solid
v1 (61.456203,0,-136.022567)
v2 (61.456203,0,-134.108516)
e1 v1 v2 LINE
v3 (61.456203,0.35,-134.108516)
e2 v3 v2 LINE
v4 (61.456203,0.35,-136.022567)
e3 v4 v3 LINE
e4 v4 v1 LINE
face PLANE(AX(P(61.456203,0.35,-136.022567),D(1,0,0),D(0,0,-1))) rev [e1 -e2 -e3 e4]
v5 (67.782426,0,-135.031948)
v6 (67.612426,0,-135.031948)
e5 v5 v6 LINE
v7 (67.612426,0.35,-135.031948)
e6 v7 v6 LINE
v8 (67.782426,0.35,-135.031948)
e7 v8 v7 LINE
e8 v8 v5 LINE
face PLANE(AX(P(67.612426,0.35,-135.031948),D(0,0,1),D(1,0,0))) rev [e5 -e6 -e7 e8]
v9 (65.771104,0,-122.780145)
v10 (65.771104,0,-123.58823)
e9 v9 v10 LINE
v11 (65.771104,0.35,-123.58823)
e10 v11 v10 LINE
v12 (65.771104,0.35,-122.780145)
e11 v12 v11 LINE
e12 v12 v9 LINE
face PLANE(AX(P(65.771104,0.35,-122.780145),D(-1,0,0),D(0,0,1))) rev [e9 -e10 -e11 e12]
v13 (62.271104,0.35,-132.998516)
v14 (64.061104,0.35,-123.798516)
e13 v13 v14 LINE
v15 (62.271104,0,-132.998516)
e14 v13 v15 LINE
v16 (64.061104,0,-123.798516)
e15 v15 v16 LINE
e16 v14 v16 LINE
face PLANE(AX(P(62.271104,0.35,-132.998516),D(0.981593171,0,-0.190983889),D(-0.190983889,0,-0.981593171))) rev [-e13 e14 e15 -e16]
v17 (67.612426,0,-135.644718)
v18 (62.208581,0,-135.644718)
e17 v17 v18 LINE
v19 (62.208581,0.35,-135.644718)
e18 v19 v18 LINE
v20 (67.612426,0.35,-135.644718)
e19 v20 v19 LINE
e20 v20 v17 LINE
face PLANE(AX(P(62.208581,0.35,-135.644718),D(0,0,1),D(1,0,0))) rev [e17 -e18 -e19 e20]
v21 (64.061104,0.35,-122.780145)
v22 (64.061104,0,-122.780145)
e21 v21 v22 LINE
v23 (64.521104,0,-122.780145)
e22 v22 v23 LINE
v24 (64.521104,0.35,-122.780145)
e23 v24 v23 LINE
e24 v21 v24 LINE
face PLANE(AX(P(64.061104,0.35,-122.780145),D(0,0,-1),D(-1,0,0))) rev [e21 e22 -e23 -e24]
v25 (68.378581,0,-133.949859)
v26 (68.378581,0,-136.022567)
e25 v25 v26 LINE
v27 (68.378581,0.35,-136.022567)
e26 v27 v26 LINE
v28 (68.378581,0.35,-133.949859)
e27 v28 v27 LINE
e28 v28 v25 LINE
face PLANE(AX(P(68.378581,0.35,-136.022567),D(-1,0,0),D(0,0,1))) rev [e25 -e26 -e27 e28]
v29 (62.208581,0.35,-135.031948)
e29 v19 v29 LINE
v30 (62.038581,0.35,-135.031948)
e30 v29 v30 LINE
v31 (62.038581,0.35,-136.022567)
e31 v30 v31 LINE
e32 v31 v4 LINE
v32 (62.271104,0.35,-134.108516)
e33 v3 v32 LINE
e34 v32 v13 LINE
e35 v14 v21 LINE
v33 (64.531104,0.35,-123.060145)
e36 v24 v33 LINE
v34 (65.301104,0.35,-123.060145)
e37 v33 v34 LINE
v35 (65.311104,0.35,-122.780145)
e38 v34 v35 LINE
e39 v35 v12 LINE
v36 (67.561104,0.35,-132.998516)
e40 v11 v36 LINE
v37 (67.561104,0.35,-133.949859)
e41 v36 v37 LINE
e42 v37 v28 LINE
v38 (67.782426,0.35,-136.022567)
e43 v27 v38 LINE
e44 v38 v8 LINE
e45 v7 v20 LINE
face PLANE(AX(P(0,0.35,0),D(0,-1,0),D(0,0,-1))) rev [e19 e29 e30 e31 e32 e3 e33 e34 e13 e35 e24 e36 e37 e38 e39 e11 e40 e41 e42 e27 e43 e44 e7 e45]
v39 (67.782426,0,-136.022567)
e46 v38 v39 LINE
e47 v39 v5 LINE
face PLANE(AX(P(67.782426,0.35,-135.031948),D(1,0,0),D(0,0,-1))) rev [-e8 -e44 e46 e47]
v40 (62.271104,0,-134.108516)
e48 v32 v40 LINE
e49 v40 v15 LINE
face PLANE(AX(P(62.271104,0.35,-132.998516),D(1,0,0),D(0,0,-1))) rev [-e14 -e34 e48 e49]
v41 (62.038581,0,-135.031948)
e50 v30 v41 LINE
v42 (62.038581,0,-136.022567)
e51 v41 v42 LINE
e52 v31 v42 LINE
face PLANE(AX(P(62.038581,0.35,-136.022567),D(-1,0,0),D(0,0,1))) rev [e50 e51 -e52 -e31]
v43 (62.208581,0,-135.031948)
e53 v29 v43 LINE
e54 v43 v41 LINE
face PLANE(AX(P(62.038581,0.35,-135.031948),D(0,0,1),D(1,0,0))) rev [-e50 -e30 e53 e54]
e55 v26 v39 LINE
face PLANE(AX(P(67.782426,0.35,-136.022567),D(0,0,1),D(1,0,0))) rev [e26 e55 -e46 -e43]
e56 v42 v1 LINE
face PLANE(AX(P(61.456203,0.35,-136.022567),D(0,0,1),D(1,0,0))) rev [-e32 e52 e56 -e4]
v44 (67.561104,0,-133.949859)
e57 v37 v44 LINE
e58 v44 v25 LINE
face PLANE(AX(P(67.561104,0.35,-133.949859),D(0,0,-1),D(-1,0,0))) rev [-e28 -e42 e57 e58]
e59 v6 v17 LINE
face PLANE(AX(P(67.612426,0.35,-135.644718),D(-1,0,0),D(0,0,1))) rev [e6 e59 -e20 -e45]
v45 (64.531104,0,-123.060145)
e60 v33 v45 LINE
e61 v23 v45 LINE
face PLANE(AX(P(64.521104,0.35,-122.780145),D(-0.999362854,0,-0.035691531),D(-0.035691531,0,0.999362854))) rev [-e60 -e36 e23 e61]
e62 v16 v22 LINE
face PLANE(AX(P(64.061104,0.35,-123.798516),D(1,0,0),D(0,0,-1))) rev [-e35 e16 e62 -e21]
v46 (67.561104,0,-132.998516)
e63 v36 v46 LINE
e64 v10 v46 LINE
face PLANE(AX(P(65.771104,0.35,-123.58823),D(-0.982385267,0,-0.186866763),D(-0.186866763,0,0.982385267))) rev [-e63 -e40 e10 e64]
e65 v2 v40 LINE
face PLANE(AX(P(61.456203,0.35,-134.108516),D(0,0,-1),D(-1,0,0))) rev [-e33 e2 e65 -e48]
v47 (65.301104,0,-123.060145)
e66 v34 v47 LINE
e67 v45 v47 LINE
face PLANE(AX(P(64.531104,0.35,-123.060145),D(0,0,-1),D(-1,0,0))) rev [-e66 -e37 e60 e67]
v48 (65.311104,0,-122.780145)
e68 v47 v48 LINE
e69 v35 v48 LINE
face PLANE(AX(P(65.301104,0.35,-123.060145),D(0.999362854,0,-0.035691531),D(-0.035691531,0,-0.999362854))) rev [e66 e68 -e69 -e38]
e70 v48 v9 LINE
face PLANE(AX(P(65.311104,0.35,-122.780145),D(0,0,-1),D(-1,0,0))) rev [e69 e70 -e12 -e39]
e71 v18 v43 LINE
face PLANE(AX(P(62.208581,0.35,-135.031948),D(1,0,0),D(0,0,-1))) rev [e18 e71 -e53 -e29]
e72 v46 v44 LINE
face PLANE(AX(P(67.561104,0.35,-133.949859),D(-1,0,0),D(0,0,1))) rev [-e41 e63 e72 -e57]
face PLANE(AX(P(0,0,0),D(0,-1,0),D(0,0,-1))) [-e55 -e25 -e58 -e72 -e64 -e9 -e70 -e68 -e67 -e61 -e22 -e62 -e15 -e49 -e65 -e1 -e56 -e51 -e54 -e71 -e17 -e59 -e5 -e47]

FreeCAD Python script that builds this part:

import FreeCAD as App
import Part
import Sketcher
Q = App.Units.Quantity

doc = App.newDocument("Part")
body = doc.addObject("PartDesign::Body", "Body")

sketch1 = body.newObject("Sketcher::SketchObject", "Sketch")
sketch1.AttachmentSupport = (doc.getObject("XZ_Plane"), [""])
sketch1.MapMode = "FlatFace"
sketch1.addGeometry([
    Part.LineSegment(App.Vector(65.77, -123.59, 0), App.Vector(67.56, -133, 0)),
    Part.LineSegment(App.Vector(67.56, -133, 0), App.Vector(67.56, -133.95, 0)),
    Part.LineSegment(App.Vector(67.56, -133.95, 0), App.Vector(68.38, -133.95, 0)),
    Part.LineSegment(App.Vector(68.38, -133.95, 0), App.Vector(68.38, -136.02, 0)),
    Part.LineSegment(App.Vector(68.38, -136.02, 0), App.Vector(67.78, -136.02, 0)),
    Part.LineSegment(App.Vector(67.78, -136.02, 0), App.Vector(67.78, -135.03, 0)),
    Part.LineSegment(App.Vector(67.78, -135.03, 0), App.Vector(67.61, -135.03, 0)),
    Part.LineSegment(App.Vector(67.61, -135.03, 0), App.Vector(67.61, -135.64, 0)),
    Part.LineSegment(App.Vector(67.61, -135.64, 0), App.Vector(62.21, -135.64, 0)),
    Part.LineSegment(App.Vector(62.21, -135.64, 0), App.Vector(62.21, -135.03, 0)),
    Part.LineSegment(App.Vector(62.21, -135.03, 0), App.Vector(62.04, -135.03, 0)),
    Part.LineSegment(App.Vector(62.04, -135.03, 0), App.Vector(62.04, -136.02, 0)),
    Part.LineSegment(App.Vector(62.04, -136.02, 0), App.Vector(61.46, -136.02, 0)),
    Part.LineSegment(App.Vector(61.46, -136.02, 0), App.Vector(61.46, -134.11, 0)),
    Part.LineSegment(App.Vector(61.46, -134.11, 0), App.Vector(62.27, -134.11, 0)),
    Part.LineSegment(App.Vector(62.27, -134.11, 0), App.Vector(62.27, -133, 0)),
    Part.LineSegment(App.Vector(62.27, -133, 0), App.Vector(64.06, -123.8, 0)),
    Part.LineSegment(App.Vector(64.06, -123.8, 0), App.Vector(64.06, -122.78, 0)),
    Part.LineSegment(App.Vector(64.06, -122.78, 0), App.Vector(64.52, -122.78, 0)),
    Part.LineSegment(App.Vector(64.52, -122.78, 0), App.Vector(64.53, -123.06, 0)),
    Part.LineSegment(App.Vector(64.53, -123.06, 0), App.Vector(65.3, -123.06, 0)),
    Part.LineSegment(App.Vector(65.3, -123.06, 0), App.Vector(65.31, -122.78, 0)),
    Part.LineSegment(App.Vector(65.31, -122.78, 0), App.Vector(65.77, -122.78, 0)),
    Part.LineSegment(App.Vector(65.77, -122.78, 0), App.Vector(65.77, -123.59, 0)),
], False)
sketch1.addConstraint([
    Sketcher.Constraint("Coincident", 0, 2, 1, 1),
    Sketcher.Constraint("Coincident", 1, 2, 2, 1),
    Sketcher.Constraint("Coincident", 2, 2, 3, 1),
    Sketcher.Constraint("Coincident", 3, 2, 4, 1),
    Sketcher.Constraint("Coincident", 4, 2, 5, 1),
    Sketcher.Constraint("Coincident", 5, 2, 6, 1),
    Sketcher.Constraint("Coincident", 6, 2, 7, 1),
    Sketcher.Constraint("Coincident", 7, 2, 8, 1),
    Sketcher.Constraint("Coincident", 8, 2, 9, 1),
    Sketcher.Constraint("Coincident", 9, 2, 10, 1),
    Sketcher.Constraint("Coincident", 10, 2, 11, 1),
    Sketcher.Constraint("Coincident", 11, 2, 12, 1),
    Sketcher.Constraint("Coincident", 12, 2, 13, 1),
    Sketcher.Constraint("Coincident", 13, 2, 14, 1),
    Sketcher.Constraint("Coincident", 14, 2, 15, 1),
    Sketcher.Constraint("Coincident", 15, 2, 16, 1),
    Sketcher.Constraint("Coincident", 16, 2, 17, 1),
    Sketcher.Constraint("Coincident", 17, 2, 18, 1),
    Sketcher.Constraint("Coincident", 18, 2, 19, 1),
    Sketcher.Constraint("Coincident", 19, 2, 20, 1),
    Sketcher.Constraint("Coincident", 20, 2, 21, 1),
    Sketcher.Constraint("Coincident", 21, 2, 22, 1),
    Sketcher.Constraint("Coincident", 22, 2, 23, 1),
    Sketcher.Constraint("Coincident", 23, 2, 0, 1),
    Sketcher.Constraint("Vertical", 1),
    Sketcher.Constraint("Horizontal", 2),
    Sketcher.Constraint("Vertical", 3),
    Sketcher.Constraint("Horizontal", 4),
    Sketcher.Constraint("Vertical", 5),
    Sketcher.Constraint("Horizontal", 6),
    Sketcher.Constraint("Vertical", 7),
    Sketcher.Constraint("Horizontal", 8),
    Sketcher.Constraint("Vertical", 9),
    Sketcher.Constraint("Horizontal", 10),
    Sketcher.Constraint("Vertical", 11),
    Sketcher.Constraint("Horizontal", 12),
    Sketcher.Constraint("Vertical", 13),
    Sketcher.Constraint("Horizontal", 14),
    Sketcher.Constraint("Vertical", 15),
    Sketcher.Constraint("Vertical", 17),
    Sketcher.Constraint("Horizontal", 18),
    Sketcher.Constraint("Horizontal", 20),
    Sketcher.Constraint("Horizontal", 22),
    Sketcher.Constraint("Vertical", 23),
    Sketcher.Constraint("Horizontal", 6, 2, 9, 2),
    Sketcher.Constraint("Horizontal", 4, 2, 11, 2),
    Sketcher.Constraint("Horizontal", 0, 2, 15, 2),
    Sketcher.Constraint("Horizontal", 18, 2, 21, 2),
    Sketcher.Constraint("Equal", 6, 10),
    Sketcher.Constraint("Equal", 18, 22),
    Sketcher.Constraint("Equal", 19, 21),
    Sketcher.Constraint("DistanceX", 6, 2, 6, 1, Q("0.17 mm")),
    Sketcher.Constraint("DistanceX", 18, 1, 18, 2, Q("0.46 mm")),
    Sketcher.Constraint("DistanceX", 20, 1, 20, 2, Q("0.77 mm")),
    Sketcher.Constraint("DistanceY", 15, 1, 15, 2, Q("1.11 mm")),
    Sketcher.Constraint("Angle", 0, Q("-79.230012 deg")),
    Sketcher.Constraint("DistanceY", 15, 2, 16, 2, Q("9.2 mm")),
    Sketcher.Constraint("DistanceX", 16, 2, 0, 2, Q("3.5 mm")),
    Sketcher.Constraint("DistanceX", 15, 2, 16, 2, Q("1.79 mm")),
    Sketcher.Constraint("DistanceX", 18, 2, 19, 2, Q("0.01 mm")),
    Sketcher.Constraint("DistanceY", 19, 2, 18, 2, Q("0.28 mm")),
    Sketcher.Constraint("DistanceX", 14, 1, 14, 2, Q("0.814901 mm")),
    Sketcher.Constraint("DistanceY", 5, 1, 5, 2, Q("0.990619 mm")),
    Sketcher.Constraint("DistanceY", 7, 2, 7, 1, Q("0.612771 mm")),
    Sketcher.Constraint("DistanceY", 13, 1, 13, 2, Q("1.914051 mm")),
    Sketcher.Constraint("DistanceY", 17, 1, 17, 2, Q("1.018371 mm")),
    Sketcher.Constraint("DistanceX", 2, 1, 2, 2, Q("0.817476 mm")),
    Sketcher.Constraint("DistanceX", 4, 2, 4, 1, Q("0.596155 mm")),
    Sketcher.Constraint("DistanceX", 8, 2, 8, 1, Q("5.403845 mm")),
    Sketcher.Constraint("DistanceY", 1, 2, 1, 1, Q("0.951343 mm")),
    Sketcher.Constraint("DistanceY", 1, 2, -1, 1, Q("133.949859 mm")),
    Sketcher.Constraint("DistanceX", -1, 1, 2, 2, Q("68.378581 mm")),
])
pad1 = body.newObject("PartDesign::Pad", "Pad")
pad1.Profile = sketch1
pad1.Length = 0.35
pad1.Reversed = True

doc.recompute()
